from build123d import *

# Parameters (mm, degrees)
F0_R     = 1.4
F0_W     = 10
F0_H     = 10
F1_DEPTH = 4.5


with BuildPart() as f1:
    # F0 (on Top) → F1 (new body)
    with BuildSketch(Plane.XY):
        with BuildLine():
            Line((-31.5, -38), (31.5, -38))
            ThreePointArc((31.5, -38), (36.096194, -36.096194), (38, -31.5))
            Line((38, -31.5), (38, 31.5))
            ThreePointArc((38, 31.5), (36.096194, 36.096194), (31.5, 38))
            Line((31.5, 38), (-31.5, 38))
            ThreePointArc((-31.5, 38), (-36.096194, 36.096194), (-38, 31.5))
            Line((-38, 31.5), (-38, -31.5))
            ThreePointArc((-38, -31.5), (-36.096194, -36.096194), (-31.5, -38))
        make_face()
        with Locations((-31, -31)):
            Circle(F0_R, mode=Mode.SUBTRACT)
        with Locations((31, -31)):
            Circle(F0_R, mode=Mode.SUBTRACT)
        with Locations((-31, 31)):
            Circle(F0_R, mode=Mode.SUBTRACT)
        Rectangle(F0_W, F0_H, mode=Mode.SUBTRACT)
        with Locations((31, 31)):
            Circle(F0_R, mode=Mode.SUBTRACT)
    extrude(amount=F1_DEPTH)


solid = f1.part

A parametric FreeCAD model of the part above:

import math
import FreeCAD as App
import Part
import Sketcher


def add_polygon(sketch, points):
    """Adds a closed chain of lines whose ends are joined by coincident constraints."""
    first, n = sketch.GeometryCount, len(points)
    for a, b in zip(points, points[1:] + points[:1]):
        sketch.addGeometry(Part.LineSegment(App.Vector(*a, 0), App.Vector(*b, 0)), False)
    for i in range(n):
        sketch.addConstraint(Sketcher.Constraint("Coincident", first + i, 2, first + (i + 1) % n, 1))

doc = App.newDocument("Part")
params = doc.addObject("Spreadsheet::Sheet", "Params")
for row, (alias, value) in enumerate([
    ("sketch1_diameter", "2.8 mm"),
    ("sketch1_radius", "6.5 mm"),
    ("sketch1_width", "63 mm"),
    ("sketch1_width2", "10 mm"),
    ("pad1_length", "4.5 mm"),
], start=1):
    params.set(f"A{row}", alias)
    params.set(f"B{row}", "=" + value)
    params.setAlias(f"B{row}", alias)

body = doc.addObject("PartDesign::Body", "Body")

# Sketch on XY plane
sketch1 = body.newObject("Sketcher::SketchObject", "Sketch")
sketch1.AttachmentSupport = (doc.getObject("XY_Plane"), [""])
sketch1.MapMode = "FlatFace"
sketch1.addGeometry(Part.LineSegment(App.Vector(-31.5, -38, 0), App.Vector(31.5, -38, 0)), False)  # 0
sketch1.addGeometry(Part.ArcOfCircle(Part.Circle(App.Vector(31.5, -31.5, 0), App.Vector(0, 0, 1), 6.5), math.radians(-90), math.radians(0)), False)  # 1
sketch1.addGeometry(Part.LineSegment(App.Vector(38, -31.5, 0), App.Vector(38, 31.5, 0)), False)  # 2
sketch1.addGeometry(Part.ArcOfCircle(Part.Circle(App.Vector(31.5, 31.5, 0), App.Vector(0, 0, 1), 6.5), math.radians(0), math.radians(90)), False)  # 3
sketch1.addGeometry(Part.LineSegment(App.Vector(31.5, 38, 0), App.Vector(-31.5, 38, 0)), False)  # 4
sketch1.addGeometry(Part.ArcOfCircle(Part.Circle(App.Vector(-31.5, 31.5, 0), App.Vector(0, 0, 1), 6.5), math.radians(90), math.radians(180)), False)  # 5
sketch1.addGeometry(Part.LineSegment(App.Vector(-38, 31.5, 0), App.Vector(-38, -31.5, 0)), False)  # 6
sketch1.addGeometry(Part.ArcOfCircle(Part.Circle(App.Vector(-31.5, -31.5, 0), App.Vector(0, 0, 1), 6.5), math.radians(-180), math.radians(-90)), False)  # 7
sketch1.addGeometry(Part.Circle(App.Vector(-31, -31, 0), App.Vector(0, 0, 1), 1.4), False)  # 8
sketch1.addGeometry(Part.Circle(App.Vector(31, -31, 0), App.Vector(0, 0, 1), 1.4), False)  # 9
sketch1.addGeometry(Part.Circle(App.Vector(-31, 31, 0), App.Vector(0, 0, 1), 1.4), False)  # 10
add_polygon(sketch1, [(5, -5), (-5, -5), (-5, 5), (5, 5)])  # lines 11-14
sketch1.addGeometry(Part.Circle(App.Vector(31, 31, 0), App.Vector(0, 0, 1), 1.4), False)  # 15
sketch1.addConstraint([
    Sketcher.Constraint("Tangent", 0, 2, 1, 1),
    Sketcher.Constraint("Tangent", 1, 2, 2, 1),
    Sketcher.Constraint("Tangent", 2, 2, 3, 1),
    Sketcher.Constraint("Tangent", 3, 2, 4, 1),
    Sketcher.Constraint("Tangent", 4, 2, 5, 1),
    Sketcher.Constraint("Tangent", 5, 2, 6, 1),
    Sketcher.Constraint("Tangent", 6, 2, 7, 1),
    Sketcher.Constraint("Tangent", 7, 2, 0, 1),
    Sketcher.Constraint("Horizontal", 0),
    Sketcher.Constraint("Vertical", 2),
    Sketcher.Constraint("Horizontal", 4),
    Sketcher.Constraint("Vertical", 6),
    Sketcher.Constraint("Horizontal", 11),
    Sketcher.Constraint("Vertical", 12),
    Sketcher.Constraint("Horizontal", 13),
    Sketcher.Constraint("Vertical", 14),
    Sketcher.Constraint("Equal", 1, 3),
    Sketcher.Constraint("Equal", 3, 5),
    Sketcher.Constraint("Equal", 5, 7),
    Sketcher.Constraint("Equal", 8, 9),
    Sketcher.Constraint("Equal", 9, 10),
    Sketcher.Constraint("Equal", 10, 15),
    Sketcher.Constraint("Symmetric", 1, 3, 5, 3, -1, 1),
    Sketcher.Constraint("Symmetric", 9, 3, 10, 3, -1, 1),
    Sketcher.Constraint("Symmetric", 8, 3, 15, 3, -1, 1),
    Sketcher.Constraint("Symmetric", 11, 2, 13, 2, -1, 1),
    Sketcher.Constraint("Symmetric", 8, 3, 9, 3, -2),
    Sketcher.Constraint("Equal", 4, 2),
    Sketcher.Constraint("Equal", 13, 12),
    Sketcher.Constraint("Diameter", 8, 2.8),
    Sketcher.Constraint("Radius", 1, 6.5),
    Sketcher.Constraint("DistanceX", 0, 1, 0, 2, 63.0),
    Sketcher.Constraint("DistanceX", 11, 2, 11, 1, 10.0),
    Sketcher.Constraint("DistanceX", 8, 3, -1, 1, 31.0),
    Sketcher.Constraint("DistanceY", 8, 3, -1, 1, 31.0),
])
sketch1.setExpression("Constraints[33]", "Params.sketch1_diameter")
sketch1.setExpression("Constraints[34]", "Params.sketch1_radius")
sketch1.setExpression("Constraints[35]", "Params.sketch1_width")
sketch1.setExpression("Constraints[36]", "Params.sketch1_width2")
pad1 = body.newObject("PartDesign::Pad", "Pad")
pad1.Profile = sketch1
pad1.setExpression("Length", "Params.pad1_length")

doc.recompute()
